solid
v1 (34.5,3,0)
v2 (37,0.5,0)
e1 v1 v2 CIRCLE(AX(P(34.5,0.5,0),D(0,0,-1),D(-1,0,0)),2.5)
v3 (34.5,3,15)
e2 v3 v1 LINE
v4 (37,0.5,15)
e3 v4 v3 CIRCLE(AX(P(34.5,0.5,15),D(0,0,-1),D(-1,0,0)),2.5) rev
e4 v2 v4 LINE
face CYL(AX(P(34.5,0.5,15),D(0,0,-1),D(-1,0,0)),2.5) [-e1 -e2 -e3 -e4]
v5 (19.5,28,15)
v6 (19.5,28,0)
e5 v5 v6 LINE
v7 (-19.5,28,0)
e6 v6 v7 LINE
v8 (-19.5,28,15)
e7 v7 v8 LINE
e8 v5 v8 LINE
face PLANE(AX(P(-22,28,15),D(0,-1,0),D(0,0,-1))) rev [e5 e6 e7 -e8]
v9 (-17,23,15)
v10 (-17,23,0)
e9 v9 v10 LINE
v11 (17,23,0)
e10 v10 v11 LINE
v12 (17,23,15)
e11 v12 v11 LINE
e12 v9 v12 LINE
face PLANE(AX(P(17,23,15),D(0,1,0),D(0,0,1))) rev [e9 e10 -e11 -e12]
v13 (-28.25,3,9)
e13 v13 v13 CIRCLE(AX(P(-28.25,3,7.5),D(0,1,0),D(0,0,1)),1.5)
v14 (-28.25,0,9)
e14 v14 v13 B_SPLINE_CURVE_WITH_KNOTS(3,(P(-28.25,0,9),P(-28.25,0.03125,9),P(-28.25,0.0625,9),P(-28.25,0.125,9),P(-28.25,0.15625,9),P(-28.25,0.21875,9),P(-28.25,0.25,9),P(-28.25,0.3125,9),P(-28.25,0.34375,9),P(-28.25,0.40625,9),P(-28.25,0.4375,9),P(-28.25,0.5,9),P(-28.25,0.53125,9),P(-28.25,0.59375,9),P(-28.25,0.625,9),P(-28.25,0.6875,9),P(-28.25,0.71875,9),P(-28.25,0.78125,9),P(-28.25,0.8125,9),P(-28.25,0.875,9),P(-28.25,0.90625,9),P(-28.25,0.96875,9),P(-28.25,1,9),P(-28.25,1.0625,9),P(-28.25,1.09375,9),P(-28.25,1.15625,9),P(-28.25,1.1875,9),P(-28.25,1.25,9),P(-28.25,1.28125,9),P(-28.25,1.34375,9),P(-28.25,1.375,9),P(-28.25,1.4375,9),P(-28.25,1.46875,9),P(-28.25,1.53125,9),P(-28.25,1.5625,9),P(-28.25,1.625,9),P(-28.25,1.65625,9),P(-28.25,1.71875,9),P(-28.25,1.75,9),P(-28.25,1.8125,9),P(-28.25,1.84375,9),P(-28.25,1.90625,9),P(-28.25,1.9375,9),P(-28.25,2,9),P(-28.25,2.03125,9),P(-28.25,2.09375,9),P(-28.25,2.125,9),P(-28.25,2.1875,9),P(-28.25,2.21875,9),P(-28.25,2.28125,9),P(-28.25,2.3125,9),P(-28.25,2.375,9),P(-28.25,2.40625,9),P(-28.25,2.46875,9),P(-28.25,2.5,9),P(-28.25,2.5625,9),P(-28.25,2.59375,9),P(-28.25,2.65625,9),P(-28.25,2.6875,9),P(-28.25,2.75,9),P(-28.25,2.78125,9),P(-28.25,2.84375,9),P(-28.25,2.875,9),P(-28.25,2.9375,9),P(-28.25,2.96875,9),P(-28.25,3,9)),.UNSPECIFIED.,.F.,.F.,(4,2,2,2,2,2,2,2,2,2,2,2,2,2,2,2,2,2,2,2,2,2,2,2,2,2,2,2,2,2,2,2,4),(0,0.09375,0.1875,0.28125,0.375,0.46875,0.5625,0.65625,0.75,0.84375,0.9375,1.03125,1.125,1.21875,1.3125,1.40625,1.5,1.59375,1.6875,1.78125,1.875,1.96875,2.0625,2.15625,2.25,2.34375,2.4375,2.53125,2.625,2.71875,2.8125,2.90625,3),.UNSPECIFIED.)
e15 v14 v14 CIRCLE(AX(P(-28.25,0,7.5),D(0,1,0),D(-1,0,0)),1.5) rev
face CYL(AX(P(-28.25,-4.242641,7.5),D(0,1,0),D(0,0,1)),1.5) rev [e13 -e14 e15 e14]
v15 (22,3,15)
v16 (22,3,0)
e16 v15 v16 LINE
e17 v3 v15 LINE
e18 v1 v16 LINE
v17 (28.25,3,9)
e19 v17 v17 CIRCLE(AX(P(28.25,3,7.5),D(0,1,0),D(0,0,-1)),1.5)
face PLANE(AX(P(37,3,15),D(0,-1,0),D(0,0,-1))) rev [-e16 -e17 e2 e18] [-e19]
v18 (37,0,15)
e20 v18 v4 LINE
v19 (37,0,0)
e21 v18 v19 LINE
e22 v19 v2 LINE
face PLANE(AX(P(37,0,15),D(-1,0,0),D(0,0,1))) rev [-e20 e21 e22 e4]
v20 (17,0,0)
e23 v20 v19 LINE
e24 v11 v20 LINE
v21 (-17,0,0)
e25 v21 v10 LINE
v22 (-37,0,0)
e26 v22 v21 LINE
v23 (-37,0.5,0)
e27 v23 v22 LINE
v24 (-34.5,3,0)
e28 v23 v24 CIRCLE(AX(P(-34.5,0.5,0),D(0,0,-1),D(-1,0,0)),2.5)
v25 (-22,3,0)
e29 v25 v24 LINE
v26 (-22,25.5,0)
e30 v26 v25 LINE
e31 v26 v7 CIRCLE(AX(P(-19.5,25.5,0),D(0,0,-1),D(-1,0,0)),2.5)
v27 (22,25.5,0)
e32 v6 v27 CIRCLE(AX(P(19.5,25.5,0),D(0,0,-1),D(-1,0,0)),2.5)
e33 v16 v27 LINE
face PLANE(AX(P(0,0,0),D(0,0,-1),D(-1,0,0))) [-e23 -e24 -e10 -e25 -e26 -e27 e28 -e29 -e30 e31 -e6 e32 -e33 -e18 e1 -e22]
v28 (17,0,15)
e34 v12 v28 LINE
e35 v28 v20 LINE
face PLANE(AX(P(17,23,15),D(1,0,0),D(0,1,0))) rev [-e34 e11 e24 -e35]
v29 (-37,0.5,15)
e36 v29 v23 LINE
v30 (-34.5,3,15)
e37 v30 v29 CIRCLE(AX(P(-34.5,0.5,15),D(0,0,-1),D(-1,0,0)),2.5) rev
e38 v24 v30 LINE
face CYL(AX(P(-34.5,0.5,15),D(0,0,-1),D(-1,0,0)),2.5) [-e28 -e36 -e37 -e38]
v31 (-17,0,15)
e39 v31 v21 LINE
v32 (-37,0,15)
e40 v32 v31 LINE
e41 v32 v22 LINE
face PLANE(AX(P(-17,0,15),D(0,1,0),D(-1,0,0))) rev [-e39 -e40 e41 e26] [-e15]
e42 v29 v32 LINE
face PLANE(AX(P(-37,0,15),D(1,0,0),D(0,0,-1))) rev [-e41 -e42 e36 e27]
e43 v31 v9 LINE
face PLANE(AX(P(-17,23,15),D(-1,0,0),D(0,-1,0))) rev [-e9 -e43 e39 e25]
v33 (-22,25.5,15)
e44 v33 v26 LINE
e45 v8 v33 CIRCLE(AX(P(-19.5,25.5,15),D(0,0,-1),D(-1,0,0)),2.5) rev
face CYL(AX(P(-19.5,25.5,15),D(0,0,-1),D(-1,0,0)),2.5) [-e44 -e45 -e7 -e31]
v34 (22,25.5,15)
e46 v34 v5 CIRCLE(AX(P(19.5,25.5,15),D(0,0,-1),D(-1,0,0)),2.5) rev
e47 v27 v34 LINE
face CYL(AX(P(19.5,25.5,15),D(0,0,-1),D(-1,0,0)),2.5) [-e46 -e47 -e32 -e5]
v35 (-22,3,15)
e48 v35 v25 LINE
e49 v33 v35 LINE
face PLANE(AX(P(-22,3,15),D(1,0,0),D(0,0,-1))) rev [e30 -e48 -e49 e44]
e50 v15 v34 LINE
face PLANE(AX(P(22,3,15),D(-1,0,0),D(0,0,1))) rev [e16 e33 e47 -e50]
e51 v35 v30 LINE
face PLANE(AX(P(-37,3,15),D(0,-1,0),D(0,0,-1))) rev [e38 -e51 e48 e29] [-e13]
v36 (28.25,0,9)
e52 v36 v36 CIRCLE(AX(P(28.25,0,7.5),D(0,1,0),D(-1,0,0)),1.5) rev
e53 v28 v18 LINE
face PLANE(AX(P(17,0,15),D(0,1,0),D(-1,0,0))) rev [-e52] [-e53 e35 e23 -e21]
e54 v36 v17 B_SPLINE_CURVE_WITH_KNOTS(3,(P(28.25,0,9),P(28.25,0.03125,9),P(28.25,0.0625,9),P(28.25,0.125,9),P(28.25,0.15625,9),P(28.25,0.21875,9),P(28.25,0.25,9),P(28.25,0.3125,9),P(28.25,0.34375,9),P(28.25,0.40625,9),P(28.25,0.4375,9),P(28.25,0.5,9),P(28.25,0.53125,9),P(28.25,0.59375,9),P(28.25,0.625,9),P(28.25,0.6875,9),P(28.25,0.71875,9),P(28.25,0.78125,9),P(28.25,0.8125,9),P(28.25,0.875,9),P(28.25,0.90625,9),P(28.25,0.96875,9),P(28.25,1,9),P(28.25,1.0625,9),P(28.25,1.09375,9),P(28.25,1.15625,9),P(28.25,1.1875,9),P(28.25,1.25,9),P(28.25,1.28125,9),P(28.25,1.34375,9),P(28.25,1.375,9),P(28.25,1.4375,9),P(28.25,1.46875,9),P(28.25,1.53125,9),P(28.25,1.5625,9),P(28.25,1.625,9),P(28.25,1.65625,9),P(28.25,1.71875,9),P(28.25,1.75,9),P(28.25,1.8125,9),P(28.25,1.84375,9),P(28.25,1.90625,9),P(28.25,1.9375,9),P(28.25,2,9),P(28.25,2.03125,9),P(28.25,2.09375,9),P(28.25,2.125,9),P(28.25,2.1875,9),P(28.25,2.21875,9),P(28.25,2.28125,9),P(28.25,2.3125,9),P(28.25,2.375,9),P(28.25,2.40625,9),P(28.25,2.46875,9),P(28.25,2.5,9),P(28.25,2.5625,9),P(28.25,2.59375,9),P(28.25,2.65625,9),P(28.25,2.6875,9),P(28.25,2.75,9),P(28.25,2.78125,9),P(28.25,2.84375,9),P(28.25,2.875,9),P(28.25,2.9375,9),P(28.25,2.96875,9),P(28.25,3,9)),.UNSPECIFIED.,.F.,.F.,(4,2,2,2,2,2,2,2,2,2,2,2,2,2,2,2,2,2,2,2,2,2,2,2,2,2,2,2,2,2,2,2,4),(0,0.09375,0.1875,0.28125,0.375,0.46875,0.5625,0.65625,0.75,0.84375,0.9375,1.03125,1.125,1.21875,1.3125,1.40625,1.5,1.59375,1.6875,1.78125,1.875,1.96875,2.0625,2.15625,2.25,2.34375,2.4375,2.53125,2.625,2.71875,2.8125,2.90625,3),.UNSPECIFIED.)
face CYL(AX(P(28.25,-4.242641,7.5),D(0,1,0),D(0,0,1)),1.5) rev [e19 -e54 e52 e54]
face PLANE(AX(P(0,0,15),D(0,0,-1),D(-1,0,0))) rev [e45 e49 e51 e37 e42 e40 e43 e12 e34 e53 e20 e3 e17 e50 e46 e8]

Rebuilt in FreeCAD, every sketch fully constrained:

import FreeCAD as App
import Part
import Sketcher

V = App.Vector
Q = App.Units.Quantity


def edges_at(feature, points):
    """Names of the edges that pass closest to the given points."""
    edges = feature.Shape.Edges
    near = lambda p: min(range(len(edges)), key=lambda i: edges[i].distToShape(Part.Vertex(*p))[0])
    return sorted({f"Edge{near(p) + 1}" for p in points})

doc = App.newDocument("Part")
body = doc.addObject("PartDesign::Body", "Body")

sketch1 = doc.addObject("Sketcher::SketchObject", "Sketch")
body.addObject(sketch1)
sketch1.AttachmentSupport = (doc.XY_Plane, [""])
sketch1.MapMode = "FlatFace"
sketch1.addGeometry([
    Part.LineSegment(V(-17, 23, 0), V(17, 23, 0)),
    Part.LineSegment(V(17, 23, 0), V(17, 0, 0)),
    Part.LineSegment(V(17, 0, 0), V(37, 0, 0)),
    Part.LineSegment(V(37, 0, 0), V(37, 3, 0)),
    Part.LineSegment(V(37, 3, 0), V(22, 3, 0)),
    Part.LineSegment(V(22, 3, 0), V(22, 28, 0)),
    Part.LineSegment(V(22, 28, 0), V(-22, 28, 0)),
    Part.LineSegment(V(-22, 28, 0), V(-22, 3, 0)),
    Part.LineSegment(V(-22, 3, 0), V(-37, 3, 0)),
    Part.LineSegment(V(-37, 3, 0), V(-37, 0, 0)),
    Part.LineSegment(V(-37, 0, 0), V(-17, 0, 0)),
    Part.LineSegment(V(-17, 0, 0), V(-17, 23, 0)),
], False)
sketch1.addConstraint([
    Sketcher.Constraint("Coincident", 0, 2, 1, 1),
    Sketcher.Constraint("Coincident", 1, 2, 2, 1),
    Sketcher.Constraint("Coincident", 2, 2, 3, 1),
    Sketcher.Constraint("Coincident", 3, 2, 4, 1),
    Sketcher.Constraint("Coincident", 4, 2, 5, 1),
    Sketcher.Constraint("Coincident", 5, 2, 6, 1),
    Sketcher.Constraint("Coincident", 6, 2, 7, 1),
    Sketcher.Constraint("Coincident", 7, 2, 8, 1),
    Sketcher.Constraint("Coincident", 8, 2, 9, 1),
    Sketcher.Constraint("Coincident", 9, 2, 10, 1),
    Sketcher.Constraint("Coincident", 10, 2, 11, 1),
    Sketcher.Constraint("Coincident", 11, 2, 0, 1),
    Sketcher.Constraint("Horizontal", 0),
    Sketcher.Constraint("Vertical", 1),
    Sketcher.Constraint("Horizontal", 2),
    Sketcher.Constraint("Vertical", 3),
    Sketcher.Constraint("Horizontal", 4),
    Sketcher.Constraint("Vertical", 5),
    Sketcher.Constraint("Horizontal", 6),
    Sketcher.Constraint("Vertical", 7),
    Sketcher.Constraint("Horizontal", 8),
    Sketcher.Constraint("Vertical", 9),
    Sketcher.Constraint("Horizontal", 10),
    Sketcher.Constraint("Vertical", 11),
    Sketcher.Constraint("Symmetric", 2, 2, 9, 2, -1, 1),
    Sketcher.Constraint("Symmetric", 4, 2, 7, 2, -2),
    Sketcher.Constraint("Symmetric", 1, 2, 10, 2, -2),
    Sketcher.Constraint("DistanceX", 0, 1, 0, 2, Q("34 mm")),
    Sketcher.Constraint("DistanceX", 2, 1, 2, 2, Q("20 mm")),
    Sketcher.Constraint("DistanceX", 4, 2, 4, 1, Q("15 mm")),
    Sketcher.Constraint("DistanceY", 1, 2, 1, 1, Q("23 mm")),
    Sketcher.Constraint("DistanceY", 3, 1, 3, 2, Q("3 mm")),
    Sketcher.Constraint("DistanceY", 5, 1, 5, 2, Q("25 mm")),
])
pad1 = doc.addObject("PartDesign::Pad", "Pad")
body.addObject(pad1)
pad1.Profile = sketch1
pad1.Length = 15
doc.recompute()

fillet = doc.addObject("PartDesign::Fillet", "Fillet")
body.addObject(fillet)
fillet.Base = (pad1, edges_at(pad1, [
    (-37, 3, 7.5),
    (-22, 28, 7.5),
    (22, 28, 7.5),
    (37, 3, 7.5),
]))
fillet.Radius = 2.5

sketch2 = doc.addObject("Sketcher::SketchObject", "Sketch001")
body.addObject(sketch2)
sketch2.AttachmentSupport = (doc.XZ_Plane, [""])
sketch2.MapMode = "FlatFace"
sketch2.AttachmentOffset = App.Placement(V(0, 0, -3), App.Rotation())
sketch2.addGeometry([
    Part.Circle(V(-28.25, 7.5, 0), V(0, 0, 1), 1.5),
    Part.Circle(V(28.25, 7.5, 0), V(0, 0, 1), 1.5),
], False)
sketch2.addConstraint([
    Sketcher.Constraint("Equal", 0, 1),
    Sketcher.Constraint("Symmetric", 0, 3, 1, 3, -2),
    Sketcher.Constraint("Diameter", 0, Q("3 mm")),
    Sketcher.Constraint("DistanceY", -1, 1, 0, 3, Q("7.5 mm")),
    Sketcher.Constraint("DistanceX", 0, 3, 1, 3, Q("56.5 mm")),
])
pocket1 = doc.addObject("PartDesign::Pocket", "Pocket")
body.addObject(pocket1)
pocket1.Profile = sketch2
pocket1.Length = 3
pocket1.Reversed = True

doc.recompute()
